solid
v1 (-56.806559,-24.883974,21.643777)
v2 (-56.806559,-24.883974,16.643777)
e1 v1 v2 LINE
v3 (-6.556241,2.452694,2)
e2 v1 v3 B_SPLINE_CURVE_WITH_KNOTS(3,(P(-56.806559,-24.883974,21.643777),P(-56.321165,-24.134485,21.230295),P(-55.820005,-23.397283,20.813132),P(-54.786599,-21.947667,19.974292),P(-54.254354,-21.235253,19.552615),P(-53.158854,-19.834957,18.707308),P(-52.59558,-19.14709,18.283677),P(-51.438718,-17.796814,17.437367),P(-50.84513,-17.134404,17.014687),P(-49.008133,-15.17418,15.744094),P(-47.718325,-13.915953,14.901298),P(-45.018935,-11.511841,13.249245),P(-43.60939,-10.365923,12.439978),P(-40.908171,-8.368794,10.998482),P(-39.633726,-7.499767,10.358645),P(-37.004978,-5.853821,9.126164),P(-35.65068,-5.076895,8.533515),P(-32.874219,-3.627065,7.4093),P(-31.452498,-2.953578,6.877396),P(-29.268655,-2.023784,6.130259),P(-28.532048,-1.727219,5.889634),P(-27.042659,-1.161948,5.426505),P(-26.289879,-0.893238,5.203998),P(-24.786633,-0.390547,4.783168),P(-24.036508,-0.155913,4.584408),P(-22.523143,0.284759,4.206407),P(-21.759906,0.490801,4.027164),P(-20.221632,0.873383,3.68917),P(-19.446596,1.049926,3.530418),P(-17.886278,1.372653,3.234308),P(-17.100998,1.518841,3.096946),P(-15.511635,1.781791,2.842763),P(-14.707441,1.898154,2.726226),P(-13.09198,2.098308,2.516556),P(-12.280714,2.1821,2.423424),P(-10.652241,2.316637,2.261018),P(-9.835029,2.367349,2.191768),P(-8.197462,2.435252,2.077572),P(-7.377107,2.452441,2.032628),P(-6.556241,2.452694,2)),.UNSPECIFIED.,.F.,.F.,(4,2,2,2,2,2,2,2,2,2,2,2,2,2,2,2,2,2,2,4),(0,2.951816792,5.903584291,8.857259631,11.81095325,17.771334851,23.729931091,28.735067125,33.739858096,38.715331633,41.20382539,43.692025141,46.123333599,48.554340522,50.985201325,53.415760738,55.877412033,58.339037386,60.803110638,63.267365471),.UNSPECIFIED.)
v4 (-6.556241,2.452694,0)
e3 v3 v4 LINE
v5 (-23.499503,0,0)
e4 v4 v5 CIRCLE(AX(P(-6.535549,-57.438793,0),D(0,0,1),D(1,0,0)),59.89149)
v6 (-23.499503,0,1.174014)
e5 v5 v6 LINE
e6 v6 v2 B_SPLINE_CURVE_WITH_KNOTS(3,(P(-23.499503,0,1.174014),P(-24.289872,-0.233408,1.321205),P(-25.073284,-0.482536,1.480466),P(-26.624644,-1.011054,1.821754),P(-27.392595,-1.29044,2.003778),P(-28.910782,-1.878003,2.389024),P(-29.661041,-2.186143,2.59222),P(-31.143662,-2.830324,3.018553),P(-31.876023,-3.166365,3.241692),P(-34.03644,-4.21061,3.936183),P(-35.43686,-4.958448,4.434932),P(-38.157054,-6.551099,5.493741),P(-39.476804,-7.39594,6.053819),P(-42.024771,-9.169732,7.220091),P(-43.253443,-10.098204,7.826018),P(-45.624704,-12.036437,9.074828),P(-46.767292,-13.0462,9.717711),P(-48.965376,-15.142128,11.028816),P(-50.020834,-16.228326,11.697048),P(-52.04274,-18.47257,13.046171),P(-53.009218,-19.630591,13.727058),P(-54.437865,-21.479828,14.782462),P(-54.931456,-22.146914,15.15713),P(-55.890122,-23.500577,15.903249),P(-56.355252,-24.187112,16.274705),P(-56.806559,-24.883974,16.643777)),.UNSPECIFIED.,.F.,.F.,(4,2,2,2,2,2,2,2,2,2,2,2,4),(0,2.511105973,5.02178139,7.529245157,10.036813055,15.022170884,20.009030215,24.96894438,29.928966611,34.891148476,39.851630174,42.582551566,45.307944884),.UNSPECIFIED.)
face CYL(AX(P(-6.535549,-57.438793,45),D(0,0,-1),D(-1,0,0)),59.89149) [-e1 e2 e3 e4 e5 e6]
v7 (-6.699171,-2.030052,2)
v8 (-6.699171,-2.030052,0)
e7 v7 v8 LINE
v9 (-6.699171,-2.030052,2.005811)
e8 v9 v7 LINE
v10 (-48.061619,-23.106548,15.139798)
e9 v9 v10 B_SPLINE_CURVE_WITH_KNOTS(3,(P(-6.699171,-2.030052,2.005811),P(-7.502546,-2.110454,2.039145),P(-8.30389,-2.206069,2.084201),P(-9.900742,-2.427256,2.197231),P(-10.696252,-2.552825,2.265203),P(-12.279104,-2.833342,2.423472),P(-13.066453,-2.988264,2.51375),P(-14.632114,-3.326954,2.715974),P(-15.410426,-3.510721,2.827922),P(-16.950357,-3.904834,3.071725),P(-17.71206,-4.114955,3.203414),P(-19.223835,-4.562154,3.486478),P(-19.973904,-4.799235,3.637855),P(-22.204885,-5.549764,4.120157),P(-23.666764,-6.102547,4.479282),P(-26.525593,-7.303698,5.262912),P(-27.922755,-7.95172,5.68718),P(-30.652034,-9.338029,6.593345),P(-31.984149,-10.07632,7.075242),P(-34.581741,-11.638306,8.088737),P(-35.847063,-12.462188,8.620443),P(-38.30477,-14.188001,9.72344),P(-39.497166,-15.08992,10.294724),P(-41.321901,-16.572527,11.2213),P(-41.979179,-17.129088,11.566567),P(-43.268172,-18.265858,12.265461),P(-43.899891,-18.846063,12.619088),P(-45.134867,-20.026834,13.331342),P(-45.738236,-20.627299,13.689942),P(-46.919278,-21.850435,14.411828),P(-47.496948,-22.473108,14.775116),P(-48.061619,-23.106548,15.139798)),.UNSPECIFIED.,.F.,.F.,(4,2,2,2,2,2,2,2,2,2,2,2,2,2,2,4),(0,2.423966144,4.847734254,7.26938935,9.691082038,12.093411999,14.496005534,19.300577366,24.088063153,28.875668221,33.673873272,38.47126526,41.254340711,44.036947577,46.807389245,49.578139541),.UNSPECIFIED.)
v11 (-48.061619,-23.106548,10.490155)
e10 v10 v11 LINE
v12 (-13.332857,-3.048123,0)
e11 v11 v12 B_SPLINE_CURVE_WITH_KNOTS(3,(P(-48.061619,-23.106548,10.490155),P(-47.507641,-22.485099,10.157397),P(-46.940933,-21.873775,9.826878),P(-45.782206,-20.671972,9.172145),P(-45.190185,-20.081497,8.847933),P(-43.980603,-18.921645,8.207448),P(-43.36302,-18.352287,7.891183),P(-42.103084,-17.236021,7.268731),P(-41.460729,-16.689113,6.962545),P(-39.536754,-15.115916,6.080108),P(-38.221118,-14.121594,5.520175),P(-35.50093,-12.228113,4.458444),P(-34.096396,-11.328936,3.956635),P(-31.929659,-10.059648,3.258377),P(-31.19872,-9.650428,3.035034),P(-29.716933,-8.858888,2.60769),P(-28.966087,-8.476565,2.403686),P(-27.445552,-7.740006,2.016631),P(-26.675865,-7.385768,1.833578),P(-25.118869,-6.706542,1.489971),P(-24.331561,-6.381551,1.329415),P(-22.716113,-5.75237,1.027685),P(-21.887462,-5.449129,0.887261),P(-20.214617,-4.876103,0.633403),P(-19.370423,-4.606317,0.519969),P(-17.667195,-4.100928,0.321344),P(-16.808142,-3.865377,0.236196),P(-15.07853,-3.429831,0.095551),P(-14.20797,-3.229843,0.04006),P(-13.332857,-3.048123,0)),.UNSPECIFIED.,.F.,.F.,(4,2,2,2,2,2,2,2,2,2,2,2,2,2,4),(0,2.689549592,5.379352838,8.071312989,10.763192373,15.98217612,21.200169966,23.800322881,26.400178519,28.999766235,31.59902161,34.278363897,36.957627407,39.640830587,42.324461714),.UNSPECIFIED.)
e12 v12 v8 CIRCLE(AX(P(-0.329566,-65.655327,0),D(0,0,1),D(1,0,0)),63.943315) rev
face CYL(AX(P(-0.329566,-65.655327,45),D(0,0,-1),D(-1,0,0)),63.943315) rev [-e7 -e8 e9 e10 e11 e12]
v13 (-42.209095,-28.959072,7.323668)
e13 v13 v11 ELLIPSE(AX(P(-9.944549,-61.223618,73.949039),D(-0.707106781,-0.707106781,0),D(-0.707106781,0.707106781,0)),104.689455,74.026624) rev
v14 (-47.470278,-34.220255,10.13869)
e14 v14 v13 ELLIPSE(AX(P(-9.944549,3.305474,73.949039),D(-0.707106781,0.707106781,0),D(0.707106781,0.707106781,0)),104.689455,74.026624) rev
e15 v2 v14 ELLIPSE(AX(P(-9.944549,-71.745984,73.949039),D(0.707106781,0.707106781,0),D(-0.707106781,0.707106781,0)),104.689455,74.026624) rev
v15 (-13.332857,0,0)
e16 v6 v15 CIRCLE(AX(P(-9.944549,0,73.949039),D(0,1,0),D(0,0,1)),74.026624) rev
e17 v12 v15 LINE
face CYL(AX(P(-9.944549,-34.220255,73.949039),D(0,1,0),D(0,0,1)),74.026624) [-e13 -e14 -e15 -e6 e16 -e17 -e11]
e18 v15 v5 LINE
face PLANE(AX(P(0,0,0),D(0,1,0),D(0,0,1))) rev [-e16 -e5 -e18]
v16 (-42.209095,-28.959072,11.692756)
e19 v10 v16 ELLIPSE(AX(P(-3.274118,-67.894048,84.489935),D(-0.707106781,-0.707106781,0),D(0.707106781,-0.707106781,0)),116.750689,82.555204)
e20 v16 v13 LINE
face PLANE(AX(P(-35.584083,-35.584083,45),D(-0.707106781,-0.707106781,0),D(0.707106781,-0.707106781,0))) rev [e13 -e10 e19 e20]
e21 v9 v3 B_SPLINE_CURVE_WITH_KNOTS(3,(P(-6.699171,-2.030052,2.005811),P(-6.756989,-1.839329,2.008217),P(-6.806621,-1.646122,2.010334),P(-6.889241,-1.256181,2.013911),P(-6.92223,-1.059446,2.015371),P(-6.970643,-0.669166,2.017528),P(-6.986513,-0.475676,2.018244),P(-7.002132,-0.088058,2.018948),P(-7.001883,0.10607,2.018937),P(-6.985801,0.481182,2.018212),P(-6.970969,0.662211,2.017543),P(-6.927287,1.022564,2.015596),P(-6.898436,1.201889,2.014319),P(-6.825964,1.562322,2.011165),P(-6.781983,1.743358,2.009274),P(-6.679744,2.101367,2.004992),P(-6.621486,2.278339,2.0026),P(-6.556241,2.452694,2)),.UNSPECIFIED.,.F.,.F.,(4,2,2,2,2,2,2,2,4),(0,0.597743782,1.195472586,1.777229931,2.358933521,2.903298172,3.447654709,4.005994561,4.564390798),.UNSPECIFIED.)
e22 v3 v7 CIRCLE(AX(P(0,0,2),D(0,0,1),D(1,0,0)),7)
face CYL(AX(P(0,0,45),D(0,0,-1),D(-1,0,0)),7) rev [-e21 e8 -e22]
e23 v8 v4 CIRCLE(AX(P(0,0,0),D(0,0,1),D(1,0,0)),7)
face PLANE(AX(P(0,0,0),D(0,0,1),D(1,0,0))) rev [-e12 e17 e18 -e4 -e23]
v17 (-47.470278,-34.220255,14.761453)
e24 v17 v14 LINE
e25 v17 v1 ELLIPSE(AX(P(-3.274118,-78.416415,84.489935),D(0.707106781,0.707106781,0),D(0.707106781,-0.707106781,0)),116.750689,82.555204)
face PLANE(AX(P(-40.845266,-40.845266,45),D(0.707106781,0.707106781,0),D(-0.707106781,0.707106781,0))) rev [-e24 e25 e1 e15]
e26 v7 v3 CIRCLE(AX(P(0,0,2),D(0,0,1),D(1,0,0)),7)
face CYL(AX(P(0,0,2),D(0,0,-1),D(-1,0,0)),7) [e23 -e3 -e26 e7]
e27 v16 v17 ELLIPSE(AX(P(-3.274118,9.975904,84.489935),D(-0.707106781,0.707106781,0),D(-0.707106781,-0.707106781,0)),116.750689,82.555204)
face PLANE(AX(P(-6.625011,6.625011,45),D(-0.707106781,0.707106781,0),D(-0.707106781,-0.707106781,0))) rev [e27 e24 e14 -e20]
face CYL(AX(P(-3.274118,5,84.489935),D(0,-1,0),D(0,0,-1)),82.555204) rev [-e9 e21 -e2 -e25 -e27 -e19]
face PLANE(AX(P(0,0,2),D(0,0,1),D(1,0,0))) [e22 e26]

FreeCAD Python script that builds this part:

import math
import FreeCAD as App
import Part
import Sketcher
Q = App.Units.Quantity

doc = App.newDocument("Part")
body = doc.addObject("PartDesign::Body", "Body")

# Sketch on XY plane
sketch1 = body.newObject("Sketcher::SketchObject", "Sketch")
sketch1.AttachmentSupport = (doc.getObject("XY_Plane"), [""])
sketch1.MapMode = "FlatFace"
sketch1.addGeometry(Part.Circle(App.Vector(0, 0, 0), App.Vector(0, 0, 1), 7), False)
sketch1.addConstraint(Sketcher.Constraint("Coincident", 0, 3, -1, 1))
sketch1.addConstraint(Sketcher.Constraint("Diameter", 0, 14.0))
pad1 = body.newObject("PartDesign::Pad", "Pad")
pad1.Profile = sketch1
pad1.Length = 2

# Sketch on XY plane
sketch2 = body.newObject("Sketcher::SketchObject", "Sketch001")
sketch2.AttachmentSupport = (doc.getObject("XY_Plane"), [""])
sketch2.MapMode = "FlatFace"
sketch2.addGeometry(Part.ArcOfCircle(Part.Circle(App.Vector(-6.5, -57.4, 0), App.Vector(0, 0, 1), 59.9), math.radians(90), math.radians(147)), False)
sketch2.addGeometry(Part.LineSegment(App.Vector(-56.8, -24.9, 0), App.Vector(-47.5, -34.2, 0)), False)
sketch2.addGeometry(Part.LineSegment(App.Vector(-47.5, -34.2, 0), App.Vector(-42.2, -29, 0)), False)
sketch2.addGeometry(Part.LineSegment(App.Vector(-42.2, -29, 0), App.Vector(-48.1, -23.1, 0)), False)
sketch2.addGeometry(Part.ArcOfCircle(Part.Circle(App.Vector(-0.3, -65.7, 0), App.Vector(0, 0, 1), 63.9), math.radians(96), math.radians(138)), False)
sketch2.addGeometry(Part.ArcOfCircle(Part.Circle(App.Vector(0, 0, 0), App.Vector(0, 0, 1), 7), math.radians(159), math.radians(197)), False)
sketch2.addConstraint(Sketcher.Constraint("Coincident", 0, 2, 1, 1))
sketch2.addConstraint(Sketcher.Constraint("Coincident", 1, 2, 2, 1))
sketch2.addConstraint(Sketcher.Constraint("Coincident", 2, 2, 3, 1))
sketch2.addConstraint(Sketcher.Constraint("Coincident", 3, 2, 4, 2))
sketch2.addConstraint(Sketcher.Constraint("Coincident", 4, 1, 5, 2))
sketch2.addConstraint(Sketcher.Constraint("Coincident", 5, 1, 0, 1))
sketch2.addConstraint(Sketcher.Constraint("Coincident", 5, 3, -1, 1))
sketch2.addConstraint(Sketcher.Constraint("Perpendicular", 1, 2))
sketch2.addConstraint(Sketcher.Constraint("Perpendicular", 2, 3))
sketch2.addConstraint(Sketcher.Constraint("Radius", 5, 7.0))
sketch2.addConstraint(Sketcher.Constraint("Angle", 1, Q("-45 deg")))
sketch2.addConstraint(Sketcher.Constraint("Radius", 0, 59.89149))
sketch2.addConstraint(Sketcher.Constraint("Radius", 4, 63.943315))
sketch2.addConstraint(Sketcher.Constraint("Distance", 3, 8.276719))
sketch2.addConstraint(Sketcher.Constraint("DistanceX", 0, 3, -1, 1, 6.535549))
sketch2.addConstraint(Sketcher.Constraint("DistanceX", 0, 2, -1, 1, 56.806559))
sketch2.addConstraint(Sketcher.Constraint("DistanceY", 2, 2, -1, 1, 28.959072))
sketch2.addConstraint(Sketcher.Constraint("DistanceX", 3, 2, -1, 1, 48.061619))
sketch2.addConstraint(Sketcher.Constraint("DistanceX", 4, 1, -1, 1, 6.699171))
sketch2.addConstraint(Sketcher.Constraint("DistanceX", 5, 1, -1, 1, 6.556241))
pad2 = body.newObject("PartDesign::Pad", "Pad001")
pad2.Profile = sketch2
pad2.Length = 45

# Sketch on XZ plane
sketch3 = body.newObject("Sketcher::SketchObject", "Sketch002")
sketch3.AttachmentSupport = (doc.getObject("XZ_Plane"), [""])
sketch3.MapMode = "FlatFace"
sketch3.addGeometry(Part.LineSegment(App.Vector(-7, 22, 0), App.Vector(-7, 2, 0)), False)
sketch3.addGeometry(Part.ArcOfCircle(Part.Circle(App.Vector(-3, 84, 0), App.Vector(0, 0, 1), 83), math.radians(-130), math.radians(-92)), False)
sketch3.addGeometry(Part.LineSegment(App.Vector(-57, 22, 0), App.Vector(-57, 54, 0)), False)
sketch3.addGeometry(Part.LineSegment(App.Vector(-57, 54, 0), App.Vector(-6, 54, 0)), False)
sketch3.addGeometry(Part.LineSegment(App.Vector(-6, 54, 0), App.Vector(-7, 22, 0)), False)
sketch3.addConstraint(Sketcher.Constraint("Coincident", 0, 2, 1, 2))
sketch3.addConstraint(Sketcher.Constraint("Coincident", 1, 1, 2, 1))
sketch3.addConstraint(Sketcher.Constraint("Coincident", 2, 2, 3, 1))
sketch3.addConstraint(Sketcher.Constraint("Coincident", 3, 2, 4, 1))
sketch3.addConstraint(Sketcher.Constraint("Coincident", 4, 2, 0, 1))
sketch3.addConstraint(Sketcher.Constraint("Vertical", 0))
sketch3.addConstraint(Sketcher.Constraint("Vertical", 2))
sketch3.addConstraint(Sketcher.Constraint("Horizontal", 3))
sketch3.addConstraint(Sketcher.Constraint("Horizontal", 1, 1, 4, 2))
sketch3.addConstraint(Sketcher.Constraint("DistanceY", -1, 1, 0, 2, 2.0))
sketch3.addConstraint(Sketcher.Constraint("Radius", 1, 82.555204))
sketch3.addConstraint(Sketcher.Constraint("DistanceX", 3, 1, 3, 2, 50.381374))
sketch3.addConstraint(Sketcher.Constraint("DistanceY", 0, 2, 0, 1, 19.643777))
sketch3.addConstraint(Sketcher.Constraint("DistanceY", 2, 1, 2, 2, 31.883243))
sketch3.addConstraint(Sketcher.Constraint("DistanceX", 1, 3, -1, 1, 3.274118))
sketch3.addConstraint(Sketcher.Constraint("DistanceX", 0, 2, -1, 1, 6.556241))
pocket1 = body.newObject("PartDesign::Pocket", "Pocket")
pocket1.Profile = sketch3
pocket1.Type = "ThroughAll"
pocket1.Midplane = True

# Sketch on XZ plane
sketch4 = body.newObject("Sketcher::SketchObject", "Sketch003")
sketch4.AttachmentSupport = (doc.getObject("XZ_Plane"), [""])
sketch4.MapMode = "FlatFace"
sketch4.addGeometry(Part.ArcOfCircle(Part.Circle(App.Vector(-10, 74, 0), App.Vector(0, 0, 1), 74), math.radians(-129), math.radians(-93)), False)
sketch4.addGeometry(Part.LineSegment(App.Vector(-13, 0, 0), App.Vector(-57, 0, 0)), False)
sketch4.addGeometry(Part.LineSegment(App.Vector(-57, 0, 0), App.Vector(-57, 17, 0)), False)
sketch4.addConstraint(Sketcher.Constraint("Coincident", 0, 2, 1, 1))
sketch4.addConstraint(Sketcher.Constraint("Coincident", 1, 2, 2, 1))
sketch4.addConstraint(Sketcher.Constraint("Coincident", 2, 2, 0, 1))
sketch4.addConstraint(Sketcher.Constraint("Horizontal", 1))
sketch4.addConstraint(Sketcher.Constraint("Vertical", 2))
sketch4.addConstraint(Sketcher.Constraint("PointOnObject", 0, 2, -1))
sketch4.addConstraint(Sketcher.Constraint("Radius", 0, 74.026624))
sketch4.addConstraint(Sketcher.Constraint("DistanceX", 1, 2, 1, 1, 43.473702))
sketch4.addConstraint(Sketcher.Constraint("DistanceY", 2, 1, 2, 2, 16.643777))
sketch4.addConstraint(Sketcher.Constraint("DistanceX", 0, 3, -1, 1, 9.944549))
pocket2 = body.newObject("PartDesign::Pocket", "Pocket001")
pocket2.Profile = sketch4
pocket2.Type = "ThroughAll"
pocket2.Reversed = True

doc.recompute()
